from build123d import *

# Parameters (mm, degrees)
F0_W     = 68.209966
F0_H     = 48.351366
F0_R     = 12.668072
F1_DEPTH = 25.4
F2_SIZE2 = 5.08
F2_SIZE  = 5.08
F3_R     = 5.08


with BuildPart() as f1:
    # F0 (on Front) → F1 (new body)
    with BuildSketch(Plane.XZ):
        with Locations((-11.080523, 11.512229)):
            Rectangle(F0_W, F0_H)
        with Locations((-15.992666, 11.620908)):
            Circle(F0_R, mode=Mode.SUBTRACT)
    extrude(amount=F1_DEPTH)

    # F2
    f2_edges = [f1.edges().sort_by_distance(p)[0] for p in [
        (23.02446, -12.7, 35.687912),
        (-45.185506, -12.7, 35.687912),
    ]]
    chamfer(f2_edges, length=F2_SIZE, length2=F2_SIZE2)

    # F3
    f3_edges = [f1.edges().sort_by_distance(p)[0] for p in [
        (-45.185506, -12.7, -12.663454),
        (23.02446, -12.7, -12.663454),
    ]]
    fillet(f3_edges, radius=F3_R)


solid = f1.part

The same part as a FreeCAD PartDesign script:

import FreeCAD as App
import Part
import Sketcher
Q = App.Units.Quantity


def edges_at(feature, points):
    """Names of the edges that pass closest to the given points."""
    edges = feature.Shape.Edges
    near = lambda p: min(range(len(edges)), key=lambda i: edges[i].distToShape(Part.Vertex(*p))[0])
    return sorted({f"Edge{near(p) + 1}" for p in points})


def add_polygon(sketch, points):
    """Adds a closed chain of lines whose ends are joined by coincident constraints."""
    first, n = sketch.GeometryCount, len(points)
    for a, b in zip(points, points[1:] + points[:1]):
        sketch.addGeometry(Part.LineSegment(App.Vector(*a, 0), App.Vector(*b, 0)), False)
    for i in range(n):
        sketch.addConstraint(Sketcher.Constraint("Coincident", first + i, 2, first + (i + 1) % n, 1))

doc = App.newDocument("Part")
body = doc.addObject("PartDesign::Body", "Body")

# Sketch on XZ plane
sketch1 = doc.addObject("Sketcher::SketchObject", "Sketch")
body.addObject(sketch1)
sketch1.AttachmentSupport = (doc.XZ_Plane, [""])
sketch1.MapMode = "FlatFace"
add_polygon(sketch1, [(-45, 36), (-45, -13), (23, -13), (23, 36)])  # lines 0-3
sketch1.addGeometry(Part.Circle(App.Vector(-16, 12, 0), App.Vector(0, 0, 1), 13), False)  # 4
sketch1.addConstraint([
    Sketcher.Constraint("Vertical", 0),
    Sketcher.Constraint("Horizontal", 1),
    Sketcher.Constraint("Vertical", 2),
    Sketcher.Constraint("Horizontal", 3),
    Sketcher.Constraint("Diameter", 4, Q("25.336144 mm")),
    Sketcher.Constraint("DistanceX", 1, 1, 1, 2, Q("68.209966 mm")),
    Sketcher.Constraint("DistanceY", 0, 2, 0, 1, Q("48.351366 mm")),
    Sketcher.Constraint("DistanceX", -1, 1, 1, 2, Q("23.02446 mm")),
    Sketcher.Constraint("DistanceY", -1, 1, 2, 2, Q("35.687912 mm")),
    Sketcher.Constraint("DistanceX", 0, 2, 4, 3, Q("29.19284 mm")),
    Sketcher.Constraint("DistanceY", -1, 1, 4, 3, Q("11.620908 mm")),
])
pad1 = doc.addObject("PartDesign::Pad", "Pad")
body.addObject(pad1)
pad1.Profile = sketch1
pad1.Length = Q("1 in")
doc.recompute()

chamfer = doc.addObject("PartDesign::Chamfer", "Chamfer")
body.addObject(chamfer)
chamfer.Base = (pad1, edges_at(pad1, [(23.024, -12.7, 35.688), (-45.186, -12.7, 35.688)]))
chamfer.ChamferType = "Two distances"
chamfer.Size = Q("0.2 in")
chamfer.Size2 = Q("0.2 in")
doc.recompute()

fillet = doc.addObject("PartDesign::Fillet", "Fillet")
body.addObject(fillet)
fillet.Base = (chamfer, edges_at(chamfer, [(-45.186, -12.7, -12.663), (23.024, -12.7, -12.663)]))
fillet.Radius = Q("0.2 in")

doc.recompute()
